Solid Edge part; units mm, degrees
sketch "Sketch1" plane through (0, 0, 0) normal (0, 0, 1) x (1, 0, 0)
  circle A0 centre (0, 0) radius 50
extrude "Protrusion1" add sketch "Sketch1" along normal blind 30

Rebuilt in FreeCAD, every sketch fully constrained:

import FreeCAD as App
import Part
import Sketcher
from FreeCAD import Vector
Q = App.Units.Quantity

doc = App.newDocument("Part")
body = doc.addObject("PartDesign::Body", "Body")

# Sketch on XY plane
sketch1 = body.newObject("Sketcher::SketchObject", "Sketch")
sketch1.AttachmentSupport = (doc.getObject("XY_Plane"), [""])
sketch1.MapMode = "FlatFace"
sketch1.addGeometry(Part.Circle(Vector(0, 0, 0), Vector(0, 0, 1), 50), False)
sketch1.addConstraint([
    Sketcher.Constraint("Coincident", 0, 3, -1, 1),
    Sketcher.Constraint("Diameter", 0, Q("3.937 in")),
])
pad1 = body.newObject("PartDesign::Pad", "Pad")
pad1.Profile = sketch1
pad1.Length = Q("1.1811024 in")

doc.recompute()
